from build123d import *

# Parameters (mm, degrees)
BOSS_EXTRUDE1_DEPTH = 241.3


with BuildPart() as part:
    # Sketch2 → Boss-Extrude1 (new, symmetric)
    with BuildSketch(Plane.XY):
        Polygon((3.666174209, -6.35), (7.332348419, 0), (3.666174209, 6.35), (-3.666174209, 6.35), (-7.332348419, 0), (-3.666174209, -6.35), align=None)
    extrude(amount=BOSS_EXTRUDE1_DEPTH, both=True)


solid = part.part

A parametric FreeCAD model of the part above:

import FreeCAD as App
import Part
import Sketcher

V = App.Vector
Q = App.Units.Quantity

doc = App.newDocument("Part")
params = doc.addObject("Spreadsheet::Sheet", "Params")
for row, (alias, value) in enumerate([
    ("pad1_length", "19 in"),
], start=1):
    params.set(f"A{row}", alias)
    params.set(f"B{row}", "=" + value)
    params.setAlias(f"B{row}", alias)

body = doc.addObject("PartDesign::Body", "Body")

sketch1 = body.newObject("Sketcher::SketchObject", "Sketch")
sketch1.AttachmentSupport = (doc.getObject("XY_Plane"), [""])
sketch1.MapMode = "FlatFace"
sketch1.addGeometry([
    Part.LineSegment(V(4, -6, 0), V(7, 0, 0)),
    Part.LineSegment(V(7, 0, 0), V(4, 6, 0)),
    Part.LineSegment(V(4, 6, 0), V(-4, 6, 0)),
    Part.LineSegment(V(-4, 6, 0), V(-7, 0, 0)),
    Part.LineSegment(V(-7, 0, 0), V(-4, -6, 0)),
    Part.LineSegment(V(-4, -6, 0), V(4, -6, 0)),
], False)
sketch1.addConstraint([
    Sketcher.Constraint("Coincident", 0, 2, 1, 1),
    Sketcher.Constraint("Coincident", 1, 2, 2, 1),
    Sketcher.Constraint("Coincident", 2, 2, 3, 1),
    Sketcher.Constraint("Coincident", 3, 2, 4, 1),
    Sketcher.Constraint("Coincident", 4, 2, 5, 1),
    Sketcher.Constraint("Coincident", 5, 2, 0, 1),
    Sketcher.Constraint("Horizontal", 2),
    Sketcher.Constraint("Horizontal", 5),
    Sketcher.Constraint("Symmetric", 0, 2, 3, 2, -1, 1),
    Sketcher.Constraint("Symmetric", 1, 2, 4, 2, -1, 1),
    Sketcher.Constraint("PointOnObject", 0, 2, -1),
    Sketcher.Constraint("Parallel", 0, 3),
    Sketcher.Constraint("Vertical", 2, 2, 4, 2),
    Sketcher.Constraint("Angle", 0, Q("60 deg")),
    Sketcher.Constraint("DistanceY", 4, 2, 2, 2, Q("0.5 in")),
    Sketcher.Constraint("DistanceX", 2, 2, 2, 1, 7.332348),
])
pad1 = body.newObject("PartDesign::Pad", "Pad")
pad1.Profile = sketch1
pad1.setExpression("Length", "Params.pad1_length")
pad1.Midplane = True

doc.recompute()
